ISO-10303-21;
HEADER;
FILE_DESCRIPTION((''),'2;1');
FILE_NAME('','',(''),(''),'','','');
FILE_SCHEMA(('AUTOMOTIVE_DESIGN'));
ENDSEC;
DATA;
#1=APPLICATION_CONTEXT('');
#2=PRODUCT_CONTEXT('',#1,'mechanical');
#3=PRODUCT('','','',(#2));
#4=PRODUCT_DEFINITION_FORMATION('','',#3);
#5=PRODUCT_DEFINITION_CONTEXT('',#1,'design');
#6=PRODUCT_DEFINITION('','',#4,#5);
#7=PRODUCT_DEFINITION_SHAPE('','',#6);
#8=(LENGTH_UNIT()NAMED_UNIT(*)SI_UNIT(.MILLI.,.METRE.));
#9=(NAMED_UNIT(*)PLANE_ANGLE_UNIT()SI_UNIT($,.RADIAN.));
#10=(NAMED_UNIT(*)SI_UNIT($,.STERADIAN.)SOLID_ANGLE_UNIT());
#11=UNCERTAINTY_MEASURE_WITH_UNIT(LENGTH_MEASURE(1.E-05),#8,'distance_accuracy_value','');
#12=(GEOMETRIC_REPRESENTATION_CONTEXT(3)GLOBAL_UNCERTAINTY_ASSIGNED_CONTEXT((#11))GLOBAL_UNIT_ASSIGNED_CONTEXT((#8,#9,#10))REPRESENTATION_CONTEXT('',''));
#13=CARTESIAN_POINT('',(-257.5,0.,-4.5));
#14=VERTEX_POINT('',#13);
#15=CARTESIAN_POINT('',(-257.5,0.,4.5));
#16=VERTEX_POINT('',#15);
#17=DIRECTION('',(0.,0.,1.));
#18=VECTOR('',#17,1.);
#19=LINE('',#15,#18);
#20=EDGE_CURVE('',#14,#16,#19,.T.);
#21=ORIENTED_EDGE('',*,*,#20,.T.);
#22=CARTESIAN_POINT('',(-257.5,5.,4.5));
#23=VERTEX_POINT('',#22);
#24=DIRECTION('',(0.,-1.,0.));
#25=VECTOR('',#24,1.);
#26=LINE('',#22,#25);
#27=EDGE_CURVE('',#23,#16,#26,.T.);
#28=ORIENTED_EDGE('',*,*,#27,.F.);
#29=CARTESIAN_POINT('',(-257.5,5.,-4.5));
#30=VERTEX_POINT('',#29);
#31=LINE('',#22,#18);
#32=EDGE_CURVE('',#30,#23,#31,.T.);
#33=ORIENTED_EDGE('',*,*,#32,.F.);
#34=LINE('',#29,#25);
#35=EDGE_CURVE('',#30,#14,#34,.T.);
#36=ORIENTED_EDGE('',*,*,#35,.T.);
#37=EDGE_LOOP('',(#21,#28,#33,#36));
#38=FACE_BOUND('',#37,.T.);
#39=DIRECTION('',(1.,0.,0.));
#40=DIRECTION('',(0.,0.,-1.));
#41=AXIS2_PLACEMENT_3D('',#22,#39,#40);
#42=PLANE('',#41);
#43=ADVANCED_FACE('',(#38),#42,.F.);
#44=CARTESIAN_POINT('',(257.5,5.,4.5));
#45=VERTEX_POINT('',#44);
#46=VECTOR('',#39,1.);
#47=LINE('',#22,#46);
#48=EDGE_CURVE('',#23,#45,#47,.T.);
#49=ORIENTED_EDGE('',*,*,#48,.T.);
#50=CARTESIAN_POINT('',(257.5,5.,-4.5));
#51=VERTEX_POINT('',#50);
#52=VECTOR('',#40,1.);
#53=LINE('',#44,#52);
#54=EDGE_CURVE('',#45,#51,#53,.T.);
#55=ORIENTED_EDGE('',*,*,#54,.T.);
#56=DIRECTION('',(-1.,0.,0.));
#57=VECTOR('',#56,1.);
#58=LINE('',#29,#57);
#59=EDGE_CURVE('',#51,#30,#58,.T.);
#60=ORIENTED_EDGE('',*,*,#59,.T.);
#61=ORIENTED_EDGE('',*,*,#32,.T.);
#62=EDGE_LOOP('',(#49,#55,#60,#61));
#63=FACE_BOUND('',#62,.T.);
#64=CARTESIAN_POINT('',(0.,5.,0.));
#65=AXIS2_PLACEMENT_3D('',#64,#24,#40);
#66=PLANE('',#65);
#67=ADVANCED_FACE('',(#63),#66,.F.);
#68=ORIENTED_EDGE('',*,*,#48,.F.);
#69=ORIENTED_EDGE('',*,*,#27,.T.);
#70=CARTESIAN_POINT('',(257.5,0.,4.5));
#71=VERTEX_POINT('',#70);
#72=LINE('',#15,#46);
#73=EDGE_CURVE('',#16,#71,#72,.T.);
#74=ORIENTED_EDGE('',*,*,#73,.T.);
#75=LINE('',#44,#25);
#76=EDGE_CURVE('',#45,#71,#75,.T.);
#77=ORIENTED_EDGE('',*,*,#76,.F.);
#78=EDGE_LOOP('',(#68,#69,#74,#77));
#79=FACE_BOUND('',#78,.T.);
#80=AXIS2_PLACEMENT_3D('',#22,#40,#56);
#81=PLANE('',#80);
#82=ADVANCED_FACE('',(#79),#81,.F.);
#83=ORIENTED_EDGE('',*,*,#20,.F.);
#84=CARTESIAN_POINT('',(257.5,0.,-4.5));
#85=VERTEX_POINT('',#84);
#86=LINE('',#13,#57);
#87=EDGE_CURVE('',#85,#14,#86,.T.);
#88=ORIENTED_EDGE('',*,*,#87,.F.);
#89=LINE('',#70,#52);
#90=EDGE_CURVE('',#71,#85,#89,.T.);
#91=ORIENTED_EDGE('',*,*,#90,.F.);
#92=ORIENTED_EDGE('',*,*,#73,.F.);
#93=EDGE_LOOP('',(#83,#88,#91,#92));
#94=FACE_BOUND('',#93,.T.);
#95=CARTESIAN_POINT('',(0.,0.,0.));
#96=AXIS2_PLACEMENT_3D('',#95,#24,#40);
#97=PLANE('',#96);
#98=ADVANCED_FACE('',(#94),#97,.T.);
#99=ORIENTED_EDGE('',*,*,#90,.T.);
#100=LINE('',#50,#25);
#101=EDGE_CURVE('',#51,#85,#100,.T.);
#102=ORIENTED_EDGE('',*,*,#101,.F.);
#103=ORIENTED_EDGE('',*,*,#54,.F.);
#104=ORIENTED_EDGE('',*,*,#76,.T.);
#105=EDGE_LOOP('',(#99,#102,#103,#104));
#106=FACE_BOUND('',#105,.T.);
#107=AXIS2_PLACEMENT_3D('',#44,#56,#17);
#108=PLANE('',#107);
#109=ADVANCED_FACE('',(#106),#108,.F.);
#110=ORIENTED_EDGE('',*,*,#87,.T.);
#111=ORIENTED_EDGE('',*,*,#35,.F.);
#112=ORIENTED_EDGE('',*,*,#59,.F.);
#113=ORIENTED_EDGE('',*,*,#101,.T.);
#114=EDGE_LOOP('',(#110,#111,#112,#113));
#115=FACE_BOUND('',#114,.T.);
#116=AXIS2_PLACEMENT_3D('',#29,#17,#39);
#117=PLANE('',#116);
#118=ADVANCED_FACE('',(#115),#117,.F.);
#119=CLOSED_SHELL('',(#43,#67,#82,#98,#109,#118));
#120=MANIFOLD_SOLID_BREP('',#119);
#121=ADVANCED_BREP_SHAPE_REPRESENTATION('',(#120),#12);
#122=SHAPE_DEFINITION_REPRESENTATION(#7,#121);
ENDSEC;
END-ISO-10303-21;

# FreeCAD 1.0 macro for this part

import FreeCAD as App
import Part
import Sketcher


def add_polygon(sketch, points):
    """Adds a closed chain of lines whose ends are joined by coincident constraints."""
    first, n = sketch.GeometryCount, len(points)
    for a, b in zip(points, points[1:] + points[:1]):
        sketch.addGeometry(Part.LineSegment(App.Vector(*a, 0), App.Vector(*b, 0)), False)
    for i in range(n):
        sketch.addConstraint(Sketcher.Constraint("Coincident", first + i, 2, first + (i + 1) % n, 1))

doc = App.newDocument("Part")
params = doc.addObject("Spreadsheet::Sheet", "Params")
for row, (alias, value) in enumerate([
    ("sketch1_width", "515 mm"),
    ("sketch1_height", "9 mm"),
    ("pad1_length", "5 mm"),
], start=1):
    params.set(f"A{row}", alias)
    params.set(f"B{row}", "=" + value)
    params.setAlias(f"B{row}", alias)

body = doc.addObject("PartDesign::Body", "Body")

sketch1 = doc.addObject("Sketcher::SketchObject", "Sketch")
body.addObject(sketch1)
sketch1.AttachmentSupport = (doc.XZ_Plane, [""])
sketch1.MapMode = "FlatFace"
add_polygon(sketch1, [(-258, -4), (-258, 4), (258, 4), (258, -4)])
sketch1.addConstraint(Sketcher.Constraint("Vertical", 0))
sketch1.addConstraint(Sketcher.Constraint("Horizontal", 1))
sketch1.addConstraint(Sketcher.Constraint("Vertical", 2))
sketch1.addConstraint(Sketcher.Constraint("Horizontal", 3))
sketch1.addConstraint(Sketcher.Constraint("Symmetric", 0, 2, 2, 2, -1, 1))
sketch1.addConstraint(Sketcher.Constraint("DistanceX", 1, 1, 1, 2, 515.0))
sketch1.addConstraint(Sketcher.Constraint("DistanceY", 0, 1, 0, 2, 9.0))
sketch1.setExpression("Constraints[9]", "Params.sketch1_width")
sketch1.setExpression("Constraints[10]", "Params.sketch1_height")
pad1 = doc.addObject("PartDesign::Pad", "Pad")
body.addObject(pad1)
pad1.Profile = sketch1
pad1.setExpression("Length", "Params.pad1_length")
pad1.Reversed = True

doc.recompute()
